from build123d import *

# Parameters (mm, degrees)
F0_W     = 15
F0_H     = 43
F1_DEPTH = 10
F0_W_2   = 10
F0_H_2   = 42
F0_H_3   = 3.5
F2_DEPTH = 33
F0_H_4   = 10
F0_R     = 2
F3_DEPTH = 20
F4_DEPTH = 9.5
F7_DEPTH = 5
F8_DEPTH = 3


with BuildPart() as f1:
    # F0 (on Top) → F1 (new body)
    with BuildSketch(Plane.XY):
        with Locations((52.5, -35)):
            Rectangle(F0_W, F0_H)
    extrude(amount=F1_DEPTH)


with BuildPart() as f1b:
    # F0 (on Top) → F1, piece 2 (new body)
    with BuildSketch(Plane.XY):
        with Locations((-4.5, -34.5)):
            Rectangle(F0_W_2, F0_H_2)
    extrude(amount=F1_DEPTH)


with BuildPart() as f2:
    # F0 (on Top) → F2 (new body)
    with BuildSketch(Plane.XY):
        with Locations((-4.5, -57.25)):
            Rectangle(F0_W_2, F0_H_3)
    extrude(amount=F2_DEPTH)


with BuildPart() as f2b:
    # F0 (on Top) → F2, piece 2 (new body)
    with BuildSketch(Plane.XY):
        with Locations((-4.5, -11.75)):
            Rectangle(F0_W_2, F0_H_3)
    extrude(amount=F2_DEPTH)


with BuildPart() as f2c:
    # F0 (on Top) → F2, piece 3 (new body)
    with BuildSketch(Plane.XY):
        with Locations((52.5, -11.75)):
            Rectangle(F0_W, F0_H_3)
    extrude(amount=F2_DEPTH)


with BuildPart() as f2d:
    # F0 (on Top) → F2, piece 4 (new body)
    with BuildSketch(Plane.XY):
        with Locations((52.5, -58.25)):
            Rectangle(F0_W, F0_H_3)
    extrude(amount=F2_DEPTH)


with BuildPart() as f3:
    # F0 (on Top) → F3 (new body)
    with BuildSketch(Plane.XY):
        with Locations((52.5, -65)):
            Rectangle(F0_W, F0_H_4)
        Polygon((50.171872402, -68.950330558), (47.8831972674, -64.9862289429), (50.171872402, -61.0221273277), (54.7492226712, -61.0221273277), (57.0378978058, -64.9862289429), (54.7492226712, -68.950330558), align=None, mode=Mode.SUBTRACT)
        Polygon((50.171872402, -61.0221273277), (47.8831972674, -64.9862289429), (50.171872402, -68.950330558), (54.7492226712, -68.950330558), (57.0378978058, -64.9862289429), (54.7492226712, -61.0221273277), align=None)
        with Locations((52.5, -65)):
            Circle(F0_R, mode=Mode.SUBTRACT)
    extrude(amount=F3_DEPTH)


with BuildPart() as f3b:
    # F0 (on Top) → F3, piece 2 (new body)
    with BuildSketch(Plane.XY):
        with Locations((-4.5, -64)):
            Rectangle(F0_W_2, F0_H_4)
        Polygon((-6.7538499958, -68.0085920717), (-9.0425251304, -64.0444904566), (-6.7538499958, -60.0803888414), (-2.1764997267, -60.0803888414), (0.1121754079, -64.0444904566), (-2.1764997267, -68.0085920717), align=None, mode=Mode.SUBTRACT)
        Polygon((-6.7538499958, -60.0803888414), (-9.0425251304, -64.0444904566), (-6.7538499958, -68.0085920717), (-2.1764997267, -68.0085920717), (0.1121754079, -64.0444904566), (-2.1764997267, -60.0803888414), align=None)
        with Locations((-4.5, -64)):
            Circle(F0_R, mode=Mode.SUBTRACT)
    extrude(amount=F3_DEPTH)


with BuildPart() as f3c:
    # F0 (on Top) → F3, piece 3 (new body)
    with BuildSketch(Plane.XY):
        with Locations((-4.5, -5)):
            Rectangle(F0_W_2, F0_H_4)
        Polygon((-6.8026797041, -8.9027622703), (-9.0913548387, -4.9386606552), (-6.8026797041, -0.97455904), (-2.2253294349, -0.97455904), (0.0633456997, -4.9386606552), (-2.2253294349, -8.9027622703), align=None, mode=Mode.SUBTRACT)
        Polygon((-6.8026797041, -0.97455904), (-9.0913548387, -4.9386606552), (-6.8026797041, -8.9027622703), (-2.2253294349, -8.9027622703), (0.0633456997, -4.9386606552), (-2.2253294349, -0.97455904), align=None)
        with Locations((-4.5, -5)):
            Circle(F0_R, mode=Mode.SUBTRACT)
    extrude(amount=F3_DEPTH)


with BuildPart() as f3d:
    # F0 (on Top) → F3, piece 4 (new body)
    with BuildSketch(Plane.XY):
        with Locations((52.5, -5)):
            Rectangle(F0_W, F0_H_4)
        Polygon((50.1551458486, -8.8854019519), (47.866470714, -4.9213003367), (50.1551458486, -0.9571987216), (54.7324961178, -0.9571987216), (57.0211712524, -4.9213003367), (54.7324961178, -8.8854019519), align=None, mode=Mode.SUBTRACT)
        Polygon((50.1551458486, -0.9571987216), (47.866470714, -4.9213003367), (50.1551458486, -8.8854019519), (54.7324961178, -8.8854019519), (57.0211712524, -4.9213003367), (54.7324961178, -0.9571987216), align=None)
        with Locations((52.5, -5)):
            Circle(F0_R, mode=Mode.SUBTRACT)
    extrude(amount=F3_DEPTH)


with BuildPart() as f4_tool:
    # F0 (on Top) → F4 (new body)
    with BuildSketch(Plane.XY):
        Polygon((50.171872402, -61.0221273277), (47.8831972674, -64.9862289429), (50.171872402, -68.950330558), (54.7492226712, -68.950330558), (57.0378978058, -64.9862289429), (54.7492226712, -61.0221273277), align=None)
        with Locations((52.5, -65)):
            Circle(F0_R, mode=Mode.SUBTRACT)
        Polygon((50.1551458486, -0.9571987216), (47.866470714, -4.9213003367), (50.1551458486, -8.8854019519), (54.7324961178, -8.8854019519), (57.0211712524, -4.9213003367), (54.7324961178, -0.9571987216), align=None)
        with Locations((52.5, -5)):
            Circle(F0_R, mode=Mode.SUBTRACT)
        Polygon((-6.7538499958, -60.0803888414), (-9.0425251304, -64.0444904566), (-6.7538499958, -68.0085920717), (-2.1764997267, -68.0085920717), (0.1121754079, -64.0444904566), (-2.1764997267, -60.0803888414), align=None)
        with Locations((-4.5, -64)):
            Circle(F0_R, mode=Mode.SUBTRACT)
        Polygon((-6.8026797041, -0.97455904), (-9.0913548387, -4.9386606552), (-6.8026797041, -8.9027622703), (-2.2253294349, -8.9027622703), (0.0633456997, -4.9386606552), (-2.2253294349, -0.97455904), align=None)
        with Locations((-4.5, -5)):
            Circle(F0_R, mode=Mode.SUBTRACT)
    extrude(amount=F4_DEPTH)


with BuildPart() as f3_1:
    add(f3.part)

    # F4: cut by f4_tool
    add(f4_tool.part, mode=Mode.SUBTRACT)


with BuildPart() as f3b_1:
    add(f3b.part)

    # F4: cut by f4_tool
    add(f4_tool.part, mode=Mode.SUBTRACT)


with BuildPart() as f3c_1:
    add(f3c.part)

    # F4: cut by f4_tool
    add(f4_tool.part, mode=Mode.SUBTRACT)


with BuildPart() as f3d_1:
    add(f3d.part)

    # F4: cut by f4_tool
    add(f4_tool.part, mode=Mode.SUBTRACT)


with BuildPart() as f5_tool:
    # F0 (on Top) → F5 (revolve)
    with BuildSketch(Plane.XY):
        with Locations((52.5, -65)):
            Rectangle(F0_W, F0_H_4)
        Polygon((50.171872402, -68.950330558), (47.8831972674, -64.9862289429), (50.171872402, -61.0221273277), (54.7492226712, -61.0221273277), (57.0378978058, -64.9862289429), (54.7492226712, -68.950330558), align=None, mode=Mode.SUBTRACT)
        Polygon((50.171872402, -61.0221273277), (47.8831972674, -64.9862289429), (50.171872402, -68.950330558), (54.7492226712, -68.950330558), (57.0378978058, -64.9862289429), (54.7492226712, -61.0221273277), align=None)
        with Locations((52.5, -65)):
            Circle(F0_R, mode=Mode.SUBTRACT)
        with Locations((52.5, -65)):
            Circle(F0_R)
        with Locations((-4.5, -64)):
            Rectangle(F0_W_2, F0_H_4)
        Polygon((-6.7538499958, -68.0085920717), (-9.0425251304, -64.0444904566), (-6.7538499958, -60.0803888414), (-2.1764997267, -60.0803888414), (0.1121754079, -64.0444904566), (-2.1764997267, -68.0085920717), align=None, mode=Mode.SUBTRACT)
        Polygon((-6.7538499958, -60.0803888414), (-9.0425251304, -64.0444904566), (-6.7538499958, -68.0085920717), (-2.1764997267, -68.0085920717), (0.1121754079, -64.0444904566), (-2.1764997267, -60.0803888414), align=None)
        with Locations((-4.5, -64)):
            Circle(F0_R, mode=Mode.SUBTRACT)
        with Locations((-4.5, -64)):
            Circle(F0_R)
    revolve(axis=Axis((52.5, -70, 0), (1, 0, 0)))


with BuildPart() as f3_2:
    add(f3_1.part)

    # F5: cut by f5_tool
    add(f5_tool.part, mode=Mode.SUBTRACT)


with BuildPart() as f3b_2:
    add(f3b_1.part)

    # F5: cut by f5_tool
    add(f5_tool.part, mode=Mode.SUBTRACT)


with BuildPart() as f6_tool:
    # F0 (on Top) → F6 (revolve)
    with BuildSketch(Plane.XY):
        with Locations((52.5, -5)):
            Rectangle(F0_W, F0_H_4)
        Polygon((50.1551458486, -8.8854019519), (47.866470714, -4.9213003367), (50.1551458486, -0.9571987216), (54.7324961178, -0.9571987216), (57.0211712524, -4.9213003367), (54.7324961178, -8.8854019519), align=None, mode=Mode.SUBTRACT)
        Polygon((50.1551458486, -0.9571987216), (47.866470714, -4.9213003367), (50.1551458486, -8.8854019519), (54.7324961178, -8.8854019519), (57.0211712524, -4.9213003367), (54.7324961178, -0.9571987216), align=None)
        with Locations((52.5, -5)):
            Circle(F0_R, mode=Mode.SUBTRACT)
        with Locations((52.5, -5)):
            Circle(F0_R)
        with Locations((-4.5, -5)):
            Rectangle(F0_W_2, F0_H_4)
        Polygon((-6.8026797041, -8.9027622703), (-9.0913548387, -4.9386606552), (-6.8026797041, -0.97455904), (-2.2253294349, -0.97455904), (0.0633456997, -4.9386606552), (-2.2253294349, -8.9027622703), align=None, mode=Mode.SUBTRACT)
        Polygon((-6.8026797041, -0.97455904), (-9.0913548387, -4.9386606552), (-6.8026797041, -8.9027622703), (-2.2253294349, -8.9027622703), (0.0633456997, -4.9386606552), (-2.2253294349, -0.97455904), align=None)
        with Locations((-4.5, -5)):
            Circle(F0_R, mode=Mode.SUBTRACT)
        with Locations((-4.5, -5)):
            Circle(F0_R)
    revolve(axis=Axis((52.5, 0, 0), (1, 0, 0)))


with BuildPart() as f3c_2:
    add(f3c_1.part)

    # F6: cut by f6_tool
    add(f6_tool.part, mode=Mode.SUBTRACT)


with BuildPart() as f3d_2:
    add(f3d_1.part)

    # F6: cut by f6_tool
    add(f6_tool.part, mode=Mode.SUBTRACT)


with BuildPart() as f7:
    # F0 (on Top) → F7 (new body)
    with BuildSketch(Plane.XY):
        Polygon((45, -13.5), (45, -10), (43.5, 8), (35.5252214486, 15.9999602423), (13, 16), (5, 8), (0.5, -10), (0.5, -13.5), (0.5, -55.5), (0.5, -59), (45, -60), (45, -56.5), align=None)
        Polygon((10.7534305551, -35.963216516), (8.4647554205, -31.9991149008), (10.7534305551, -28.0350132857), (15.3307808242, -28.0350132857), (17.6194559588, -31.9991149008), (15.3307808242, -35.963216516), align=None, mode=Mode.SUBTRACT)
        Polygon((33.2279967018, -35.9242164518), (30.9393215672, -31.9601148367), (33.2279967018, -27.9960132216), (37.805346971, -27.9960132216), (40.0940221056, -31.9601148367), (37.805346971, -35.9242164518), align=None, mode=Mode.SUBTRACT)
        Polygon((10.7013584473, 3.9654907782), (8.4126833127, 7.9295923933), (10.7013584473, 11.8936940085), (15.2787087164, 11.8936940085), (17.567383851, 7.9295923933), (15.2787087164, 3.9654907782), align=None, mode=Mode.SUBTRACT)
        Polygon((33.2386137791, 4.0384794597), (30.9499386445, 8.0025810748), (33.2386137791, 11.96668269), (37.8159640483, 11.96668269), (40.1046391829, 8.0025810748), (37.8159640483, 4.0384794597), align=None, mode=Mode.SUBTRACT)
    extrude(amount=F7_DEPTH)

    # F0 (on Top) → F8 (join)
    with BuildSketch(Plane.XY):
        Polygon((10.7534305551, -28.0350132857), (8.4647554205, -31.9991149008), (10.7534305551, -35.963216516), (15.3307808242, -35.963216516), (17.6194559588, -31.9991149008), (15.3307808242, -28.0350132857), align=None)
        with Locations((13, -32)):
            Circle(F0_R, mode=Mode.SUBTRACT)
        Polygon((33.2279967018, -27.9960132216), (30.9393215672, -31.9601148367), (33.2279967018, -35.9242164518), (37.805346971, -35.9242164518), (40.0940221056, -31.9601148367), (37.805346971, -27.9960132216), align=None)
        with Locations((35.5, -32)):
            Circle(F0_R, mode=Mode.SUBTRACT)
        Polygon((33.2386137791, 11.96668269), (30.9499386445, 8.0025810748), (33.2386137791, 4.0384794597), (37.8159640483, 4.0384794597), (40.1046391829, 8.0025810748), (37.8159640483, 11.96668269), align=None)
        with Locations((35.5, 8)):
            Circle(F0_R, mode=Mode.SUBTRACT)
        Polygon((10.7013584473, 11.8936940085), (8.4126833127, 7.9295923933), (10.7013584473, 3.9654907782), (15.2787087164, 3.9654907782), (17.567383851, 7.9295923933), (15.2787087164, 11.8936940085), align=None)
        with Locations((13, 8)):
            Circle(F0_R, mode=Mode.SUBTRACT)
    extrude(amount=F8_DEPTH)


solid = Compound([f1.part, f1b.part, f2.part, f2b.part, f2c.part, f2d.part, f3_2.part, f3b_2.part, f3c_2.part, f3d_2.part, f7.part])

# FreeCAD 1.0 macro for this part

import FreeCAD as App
import Part
import Sketcher
from FreeCAD import Vector
Q = App.Units.Quantity


def add_polygon(sketch, points):
    """Adds a closed chain of lines whose ends are joined by coincident constraints."""
    first, n = sketch.GeometryCount, len(points)
    for a, b in zip(points, points[1:] + points[:1]):
        sketch.addGeometry(Part.LineSegment(App.Vector(*a, 0), App.Vector(*b, 0)), False)
    for i in range(n):
        sketch.addConstraint(Sketcher.Constraint("Coincident", first + i, 2, first + (i + 1) % n, 1))

doc = App.newDocument("Part")
body = doc.addObject("PartDesign::Body", "Body")

# Sketch on XY plane
sketch1 = body.newObject("Sketcher::SketchObject", "Sketch")
sketch1.AttachmentSupport = (doc.getObject("XY_Plane"), [""])
sketch1.MapMode = "FlatFace"
add_polygon(sketch1, [(45, -14), (45, -56), (60, -56), (60, -14)])  # lines 0-3
sketch1.addConstraint(Sketcher.Constraint("Vertical", 0))
sketch1.addConstraint(Sketcher.Constraint("Horizontal", 1))
sketch1.addConstraint(Sketcher.Constraint("Vertical", 2))
sketch1.addConstraint(Sketcher.Constraint("Horizontal", 3))
sketch1.addConstraint(Sketcher.Constraint("DistanceX", 1, 1, 1, 2, 15.0))
sketch1.addConstraint(Sketcher.Constraint("DistanceY", 0, 2, 0, 1, 43.0))
sketch1.addConstraint(Sketcher.Constraint("DistanceX", -1, 1, 0, 2, 45.0))
sketch1.addConstraint(Sketcher.Constraint("DistanceY", 0, 2, -1, 1, 56.5))
pad1 = body.newObject("PartDesign::Pad", "Pad")
pad1.Profile = sketch1
pad1.Length = 10
body2 = doc.addObject("PartDesign::Body", "Body001")

# Sketch on XY plane
sketch2 = body2.newObject("Sketcher::SketchObject", "Sketch001")
sketch2.AttachmentSupport = (doc.getObject("XY_Plane001"), [""])
sketch2.MapMode = "FlatFace"
add_polygon(sketch2, [(-10, -14), (-10, -56), (0, -56), (0, -14)])  # lines 0-3
sketch2.addConstraint(Sketcher.Constraint("Vertical", 0))
sketch2.addConstraint(Sketcher.Constraint("Horizontal", 1))
sketch2.addConstraint(Sketcher.Constraint("Vertical", 2))
sketch2.addConstraint(Sketcher.Constraint("Horizontal", 3))
sketch2.addConstraint(Sketcher.Constraint("DistanceX", 1, 1, 1, 2, 10.0))
sketch2.addConstraint(Sketcher.Constraint("DistanceY", 0, 2, 0, 1, 42.0))
sketch2.addConstraint(Sketcher.Constraint("DistanceX", 0, 2, -1, 1, 9.5))
sketch2.addConstraint(Sketcher.Constraint("DistanceY", 0, 2, -1, 1, 55.5))
pad2 = body2.newObject("PartDesign::Pad", "Pad001")
pad2.Profile = sketch2
pad2.Length = 10
body3 = doc.addObject("PartDesign::Body", "Body002")

# Sketch on XY plane
sketch3 = body3.newObject("Sketcher::SketchObject", "Sketch002")
sketch3.AttachmentSupport = (doc.getObject("XY_Plane002"), [""])
sketch3.MapMode = "FlatFace"
add_polygon(sketch3, [(-9.5, -55.5), (-9.5, -59), (0.5, -59), (0.5, -55.5)])  # lines 0-3
sketch3.addConstraint(Sketcher.Constraint("Vertical", 0))
sketch3.addConstraint(Sketcher.Constraint("Horizontal", 1))
sketch3.addConstraint(Sketcher.Constraint("Vertical", 2))
sketch3.addConstraint(Sketcher.Constraint("Horizontal", 3))
sketch3.addConstraint(Sketcher.Constraint("DistanceX", 1, 1, 1, 2, 10.0))
sketch3.addConstraint(Sketcher.Constraint("DistanceY", 0, 2, 0, 1, 3.5))
sketch3.addConstraint(Sketcher.Constraint("DistanceY", 0, 2, -1, 1, 59.0))
sketch3.addConstraint(Sketcher.Constraint("DistanceX", 0, 2, -1, 1, 9.5))
pad3 = body3.newObject("PartDesign::Pad", "Pad002")
pad3.Profile = sketch3
pad3.Length = 33
body4 = doc.addObject("PartDesign::Body", "Body003")

# Sketch on XY plane
sketch4 = body4.newObject("Sketcher::SketchObject", "Sketch003")
sketch4.AttachmentSupport = (doc.getObject("XY_Plane003"), [""])
sketch4.MapMode = "FlatFace"
add_polygon(sketch4, [(-9.5, -10), (-9.5, -13.5), (0.5, -13.5), (0.5, -10)])  # lines 0-3
sketch4.addConstraint(Sketcher.Constraint("Vertical", 0))
sketch4.addConstraint(Sketcher.Constraint("Horizontal", 1))
sketch4.addConstraint(Sketcher.Constraint("Vertical", 2))
sketch4.addConstraint(Sketcher.Constraint("Horizontal", 3))
sketch4.addConstraint(Sketcher.Constraint("DistanceX", 1, 1, 1, 2, 10.0))
sketch4.addConstraint(Sketcher.Constraint("DistanceY", 0, 2, 0, 1, 3.5))
sketch4.addConstraint(Sketcher.Constraint("DistanceY", 2, 2, -1, 1, 10.0))
sketch4.addConstraint(Sketcher.Constraint("DistanceX", 0, 2, -1, 1, 9.5))
pad4 = body4.newObject("PartDesign::Pad", "Pad003")
pad4.Profile = sketch4
pad4.Length = 33
body5 = doc.addObject("PartDesign::Body", "Body004")

# Sketch on XY plane
sketch5 = body5.newObject("Sketcher::SketchObject", "Sketch004")
sketch5.AttachmentSupport = (doc.getObject("XY_Plane004"), [""])
sketch5.MapMode = "FlatFace"
add_polygon(sketch5, [(45, -10), (45, -13.5), (60, -13.5), (60, -10)])  # lines 0-3
sketch5.addConstraint(Sketcher.Constraint("Vertical", 0))
sketch5.addConstraint(Sketcher.Constraint("Horizontal", 1))
sketch5.addConstraint(Sketcher.Constraint("Vertical", 2))
sketch5.addConstraint(Sketcher.Constraint("Horizontal", 3))
sketch5.addConstraint(Sketcher.Constraint("DistanceX", 1, 1, 1, 2, 15.0))
sketch5.addConstraint(Sketcher.Constraint("DistanceY", 0, 2, 0, 1, 3.5))
sketch5.addConstraint(Sketcher.Constraint("DistanceX", -1, 1, 0, 2, 45.0))
sketch5.addConstraint(Sketcher.Constraint("DistanceY", 2, 2, -1, 1, 10.0))
pad5 = body5.newObject("PartDesign::Pad", "Pad004")
pad5.Profile = sketch5
pad5.Length = 33
body6 = doc.addObject("PartDesign::Body", "Body005")

# Sketch on XY plane
sketch6 = body6.newObject("Sketcher::SketchObject", "Sketch005")
sketch6.AttachmentSupport = (doc.getObject("XY_Plane005"), [""])
sketch6.MapMode = "FlatFace"
add_polygon(sketch6, [(45, -56.5), (45, -60), (60, -60), (60, -56.5)])  # lines 0-3
sketch6.addConstraint(Sketcher.Constraint("Vertical", 0))
sketch6.addConstraint(Sketcher.Constraint("Horizontal", 1))
sketch6.addConstraint(Sketcher.Constraint("Vertical", 2))
sketch6.addConstraint(Sketcher.Constraint("Horizontal", 3))
sketch6.addConstraint(Sketcher.Constraint("DistanceX", 1, 1, 1, 2, 15.0))
sketch6.addConstraint(Sketcher.Constraint("DistanceY", 0, 2, 0, 1, 3.5))
sketch6.addConstraint(Sketcher.Constraint("DistanceX", -1, 1, 0, 2, 45.0))
sketch6.addConstraint(Sketcher.Constraint("DistanceY", 0, 2, -1, 1, 60.0))
pad6 = body6.newObject("PartDesign::Pad", "Pad005")
pad6.Profile = sketch6
pad6.Length = 33
body7 = doc.addObject("PartDesign::Body", "Body006")

# Sketch on XY plane
sketch7 = body7.newObject("Sketcher::SketchObject", "Sketch006")
sketch7.AttachmentSupport = (doc.getObject("XY_Plane006"), [""])
sketch7.MapMode = "FlatFace"
add_polygon(sketch7, [(45, -60), (45, -70), (60, -70), (60, -60)])  # lines 0-3
sketch7.addGeometry(Part.Circle(Vector(52.5, -65, 0), Vector(0, 0, 1), 2), False)  # 4
sketch7.addConstraint(Sketcher.Constraint("Vertical", 0))
sketch7.addConstraint(Sketcher.Constraint("Horizontal", 1))
sketch7.addConstraint(Sketcher.Constraint("Vertical", 2))
sketch7.addConstraint(Sketcher.Constraint("Horizontal", 3))
sketch7.addConstraint(Sketcher.Constraint("Diameter", 4, 4.0))
sketch7.addConstraint(Sketcher.Constraint("DistanceX", 1, 1, 1, 2, 15.0))
sketch7.addConstraint(Sketcher.Constraint("DistanceY", 0, 2, 0, 1, 10.0))
sketch7.addConstraint(Sketcher.Constraint("DistanceY", 4, 3, -1, 1, 65.0))
sketch7.addConstraint(Sketcher.Constraint("DistanceX", -1, 1, 0, 2, 45.0))
sketch7.addConstraint(Sketcher.Constraint("DistanceY", 0, 2, -1, 1, 70.0))
sketch7.addConstraint(Sketcher.Constraint("DistanceX", -1, 1, 4, 3, 52.5))
pad7 = body7.newObject("PartDesign::Pad", "Pad006")
pad7.Profile = sketch7
pad7.Length = 20
body8 = doc.addObject("PartDesign::Body", "Body007")

# Sketch on XY plane
sketch8 = body8.newObject("Sketcher::SketchObject", "Sketch007")
sketch8.AttachmentSupport = (doc.getObject("XY_Plane007"), [""])
sketch8.MapMode = "FlatFace"
add_polygon(sketch8, [(-9.5, -59), (-9.5, -69), (0.5, -69), (0.5, -59)])  # lines 0-3
sketch8.addGeometry(Part.Circle(Vector(-4.5, -64, 0), Vector(0, 0, 1), 2), False)  # 4
sketch8.addConstraint(Sketcher.Constraint("Vertical", 0))
sketch8.addConstraint(Sketcher.Constraint("Horizontal", 1))
sketch8.addConstraint(Sketcher.Constraint("Vertical", 2))
sketch8.addConstraint(Sketcher.Constraint("Horizontal", 3))
sketch8.addConstraint(Sketcher.Constraint("Equal", 3, 0))
sketch8.addConstraint(Sketcher.Constraint("Diameter", 4, 4.0))
sketch8.addConstraint(Sketcher.Constraint("DistanceX", 1, 1, 1, 2, 10.0))
sketch8.addConstraint(Sketcher.Constraint("DistanceY", 4, 3, -1, 1, 64.0))
sketch8.addConstraint(Sketcher.Constraint("DistanceY", 0, 2, -1, 1, 69.0))
sketch8.addConstraint(Sketcher.Constraint("DistanceX", 0, 2, 4, 3, 5.0))
sketch8.addConstraint(Sketcher.Constraint("DistanceX", 4, 3, -1, 1, 4.5))
pad8 = body8.newObject("PartDesign::Pad", "Pad007")
pad8.Profile = sketch8
pad8.Length = 20
body9 = doc.addObject("PartDesign::Body", "Body008")

# Sketch on XY plane
sketch9 = body9.newObject("Sketcher::SketchObject", "Sketch008")
sketch9.AttachmentSupport = (doc.getObject("XY_Plane008"), [""])
sketch9.MapMode = "FlatFace"
add_polygon(sketch9, [(-9.5, 0), (-9.5, -10), (0.5, -10), (0.5, 0)])  # lines 0-3
sketch9.addGeometry(Part.Circle(Vector(-4.5, -5, 0), Vector(0, 0, 1), 2), False)  # 4
sketch9.addConstraint(Sketcher.Constraint("Vertical", 0))
sketch9.addConstraint(Sketcher.Constraint("Horizontal", 1))
sketch9.addConstraint(Sketcher.Constraint("Vertical", 2))
sketch9.addConstraint(Sketcher.Constraint("Horizontal", 3))
sketch9.addConstraint(Sketcher.Constraint("PointOnObject", 2, 2, -1))
sketch9.addConstraint(Sketcher.Constraint("Equal", 3, 0))
sketch9.addConstraint(Sketcher.Constraint("Diameter", 4, 4.0))
sketch9.addConstraint(Sketcher.Constraint("DistanceX", 1, 1, 1, 2, 10.0))
sketch9.addConstraint(Sketcher.Constraint("DistanceY", 4, 3, -1, 1, 5.0))
sketch9.addConstraint(Sketcher.Constraint("DistanceX", 0, 2, 4, 3, 5.0))
sketch9.addConstraint(Sketcher.Constraint("DistanceX", 4, 3, -1, 1, 4.5))
pad9 = body9.newObject("PartDesign::Pad", "Pad008")
pad9.Profile = sketch9
pad9.Length = 20
body10 = doc.addObject("PartDesign::Body", "Body009")

# Sketch on XY plane
sketch10 = body10.newObject("Sketcher::SketchObject", "Sketch009")
sketch10.AttachmentSupport = (doc.getObject("XY_Plane009"), [""])
sketch10.MapMode = "FlatFace"
add_polygon(sketch10, [(45, 0), (45, -10), (60, -10), (60, 0)])  # lines 0-3
sketch10.addGeometry(Part.Circle(Vector(52.5, -5, 0), Vector(0, 0, 1), 2), False)  # 4
sketch10.addConstraint(Sketcher.Constraint("Vertical", 0))
sketch10.addConstraint(Sketcher.Constraint("Horizontal", 1))
sketch10.addConstraint(Sketcher.Constraint("Vertical", 2))
sketch10.addConstraint(Sketcher.Constraint("Horizontal", 3))
sketch10.addConstraint(Sketcher.Constraint("PointOnObject", 2, 2, -1))
sketch10.addConstraint(Sketcher.Constraint("Diameter", 4, 4.0))
sketch10.addConstraint(Sketcher.Constraint("DistanceX", 1, 1, 1, 2, 15.0))
sketch10.addConstraint(Sketcher.Constraint("DistanceY", 0, 2, 0, 1, 10.0))
sketch10.addConstraint(Sketcher.Constraint("DistanceY", 4, 3, -1, 1, 5.0))
sketch10.addConstraint(Sketcher.Constraint("DistanceX", -1, 1, 0, 2, 45.0))
sketch10.addConstraint(Sketcher.Constraint("DistanceX", -1, 1, 4, 3, 52.5))
pad10 = body10.newObject("PartDesign::Pad", "Pad009")
pad10.Profile = sketch10
pad10.Length = 20
body11 = doc.addObject("PartDesign::Body", "Body010")
body11.AllowCompound = True

# Sketch on XY plane
sketch11 = body11.newObject("Sketcher::SketchObject", "Sketch010")
sketch11.AttachmentSupport = (doc.getObject("XY_Plane010"), [""])
sketch11.MapMode = "FlatFace"
add_polygon(sketch11, [(50.2, -61), (47.9, -65), (50.2, -69), (54.7, -69), (57, -65), (54.7, -61)])  # lines 0-5
sketch11.addGeometry(Part.Circle(Vector(52.5, -65, 0), Vector(0, 0, 1), 2), False)  # 6
add_polygon(sketch11, [(50.2, -1), (47.9, -4.9), (50.2, -8.9), (54.7, -8.9), (57, -4.9), (54.7, -1)])  # lines 7-12
sketch11.addGeometry(Part.Circle(Vector(52.5, -5, 0), Vector(0, 0, 1), 2), False)  # 13
add_polygon(sketch11, [(-6.8, -60.1), (-9, -64), (-6.8, -68), (-2.2, -68), (0.1, -64), (-2.2, -60.1)])  # lines 14-19
sketch11.addGeometry(Part.Circle(Vector(-4.5, -64, 0), Vector(0, 0, 1), 2), False)  # 20
add_polygon(sketch11, [(-6.8, -1), (-9.1, -4.9), (-6.8, -8.9), (-2.2, -8.9), (0.1, -4.9), (-2.2, -1)])  # lines 21-26
sketch11.addGeometry(Part.Circle(Vector(-4.5, -5, 0), Vector(0, 0, 1), 2), False)  # 27
sketch11.addConstraint(Sketcher.Constraint("Horizontal", 2))
sketch11.addConstraint(Sketcher.Constraint("Horizontal", 5))
sketch11.addConstraint(Sketcher.Constraint("Horizontal", 9))
sketch11.addConstraint(Sketcher.Constraint("Horizontal", 12))
sketch11.addConstraint(Sketcher.Constraint("Horizontal", 16))
sketch11.addConstraint(Sketcher.Constraint("Horizontal", 19))
sketch11.addConstraint(Sketcher.Constraint("Horizontal", 23))
sketch11.addConstraint(Sketcher.Constraint("Horizontal", 26))
sketch11.addConstraint(Sketcher.Constraint("Equal", 6, 13))
sketch11.addConstraint(Sketcher.Constraint("Equal", 13, 20))
sketch11.addConstraint(Sketcher.Constraint("Equal", 20, 27))
sketch11.addConstraint(Sketcher.Constraint("Parallel", 0, 3))
sketch11.addConstraint(Sketcher.Constraint("Parallel", 1, 4))
sketch11.addConstraint(Sketcher.Constraint("Parallel", 3, 7))
sketch11.addConstraint(Sketcher.Constraint("Parallel", 4, 8))
sketch11.addConstraint(Sketcher.Constraint("Parallel", 7, 10))
sketch11.addConstraint(Sketcher.Constraint("Parallel", 8, 11))
sketch11.addConstraint(Sketcher.Constraint("Parallel", 10, 14))
sketch11.addConstraint(Sketcher.Constraint("Parallel", 11, 15))
sketch11.addConstraint(Sketcher.Constraint("Parallel", 14, 17))
sketch11.addConstraint(Sketcher.Constraint("Parallel", 15, 18))
sketch11.addConstraint(Sketcher.Constraint("Parallel", 17, 21))
sketch11.addConstraint(Sketcher.Constraint("Parallel", 18, 22))
sketch11.addConstraint(Sketcher.Constraint("Parallel", 21, 24))
sketch11.addConstraint(Sketcher.Constraint("Parallel", 22, 25))
sketch11.addConstraint(Sketcher.Constraint("Horizontal", 13, 3, 27, 3))
sketch11.addConstraint(Sketcher.Constraint("Horizontal", 0, 2, 3, 2))
sketch11.addConstraint(Sketcher.Constraint("Horizontal", 7, 2, 10, 2))
sketch11.addConstraint(Sketcher.Constraint("Horizontal", 14, 2, 17, 2))
sketch11.addConstraint(Sketcher.Constraint("Horizontal", 21, 2, 24, 2))
sketch11.addConstraint(Sketcher.Constraint("Vertical", 6, 3, 13, 3))
sketch11.addConstraint(Sketcher.Constraint("Vertical", 20, 3, 27, 3))
sketch11.addConstraint(Sketcher.Constraint("Vertical", 2, 2, 4, 2))
sketch11.addConstraint(Sketcher.Constraint("Vertical", 1, 2, 5, 2))
sketch11.addConstraint(Sketcher.Constraint("Vertical", 9, 2, 11, 2))
sketch11.addConstraint(Sketcher.Constraint("Vertical", 16, 2, 18, 2))
sketch11.addConstraint(Sketcher.Constraint("Vertical", 23, 2, 25, 2))
sketch11.addConstraint(Sketcher.Constraint("Equal", 5, 9))
sketch11.addConstraint(Sketcher.Constraint("Equal", 12, 16))
sketch11.addConstraint(Sketcher.Constraint("Equal", 19, 23))
sketch11.addConstraint(Sketcher.Constraint("Equal", 4, 7))
sketch11.addConstraint(Sketcher.Constraint("Equal", 11, 14))
sketch11.addConstraint(Sketcher.Constraint("Equal", 18, 21))
sketch11.addConstraint(Sketcher.Constraint("Diameter", 6, 4.0))
sketch11.addConstraint(Sketcher.Constraint("Angle", 0, Q("-120 deg")))
sketch11.addConstraint(Sketcher.Constraint("DistanceY", 6, 3, -1, 1, 65.0))
sketch11.addConstraint(Sketcher.Constraint("DistanceY", 13, 3, -1, 1, 5.0))
sketch11.addConstraint(Sketcher.Constraint("DistanceY", 20, 3, -1, 1, 64.0))
sketch11.addConstraint(Sketcher.Constraint("DistanceX", 20, 3, 6, 3, 57.0))
sketch11.addConstraint(Sketcher.Constraint("DistanceX", -1, 1, 6, 3, 52.5))
sketch11.addConstraint(Sketcher.Constraint("DistanceX", 2, 1, 2, 2, 4.57735))
sketch11.addConstraint(Sketcher.Constraint("DistanceY", 7, 2, -1, 1, 4.9213))
sketch11.addConstraint(Sketcher.Constraint("DistanceY", 8, 2, -1, 1, 8.885402))
sketch11.addConstraint(Sketcher.Constraint("DistanceX", 16, 2, -1, 1, 2.1765))
sketch11.addConstraint(Sketcher.Constraint("DistanceX", 7, 2, 5, 2, 2.305402))
sketch11.addConstraint(Sketcher.Constraint("DistanceX", 23, 2, 7, 2, 50.0918))
sketch11.addConstraint(Sketcher.Constraint("DistanceY", 0, 2, -1, 1, 64.986229))
sketch11.addConstraint(Sketcher.Constraint("DistanceX", -1, 1, 7, 2, 47.866471))
sketch11.addConstraint(Sketcher.Constraint("DistanceY", 14, 2, -1, 1, 64.04449))
sketch11.addConstraint(Sketcher.Constraint("DistanceY", 21, 2, -1, 1, 4.938661))
pad11 = body11.newObject("PartDesign::Pad", "Pad010")
pad11.Profile = sketch11
pad11.Length = 9.5
doc.recompute()

body12 = doc.addObject("PartDesign::Body", "Body011")
body12.BaseFeature = body11
boolean = body7.newObject("PartDesign::Boolean", "Boolean")
boolean.Type = "Cut"
boolean.addObjects([body12])
doc.recompute()

body13 = doc.addObject("PartDesign::Body", "Body012")
body13.BaseFeature = body11
boolean2 = body8.newObject("PartDesign::Boolean", "Boolean001")
boolean2.Type = "Cut"
boolean2.addObjects([body13])
doc.recompute()

body14 = doc.addObject("PartDesign::Body", "Body013")
body14.BaseFeature = body11
boolean3 = body9.newObject("PartDesign::Boolean", "Boolean002")
boolean3.Type = "Cut"
boolean3.addObjects([body14])
doc.recompute()

boolean4 = body10.newObject("PartDesign::Boolean", "Boolean003")
boolean4.Type = "Cut"
boolean4.addObjects([body11])
body15 = doc.addObject("PartDesign::Body", "Body014")
body15.AllowCompound = True

# Sketch on XY plane
sketch12 = body15.newObject("Sketcher::SketchObject", "Sketch011")
sketch12.AttachmentSupport = (doc.getObject("XY_Plane014"), [""])
sketch12.MapMode = "FlatFace"
add_polygon(sketch12, [(45, -60), (45, -70), (60, -70), (60, -60)])  # lines 0-3
add_polygon(sketch12, [(-10, -59), (-10, -69), (0, -69), (0, -59)])  # lines 4-7
sketch12.addGeometry(Part.LineSegment(Vector(-10, -70, 0), Vector(60, -70, 0)), True)  # axis
sketch12.addConstraint(Sketcher.Constraint("Vertical", 0))
sketch12.addConstraint(Sketcher.Constraint("Horizontal", 1))
sketch12.addConstraint(Sketcher.Constraint("Vertical", 2))
sketch12.addConstraint(Sketcher.Constraint("Horizontal", 3))
sketch12.addConstraint(Sketcher.Constraint("Vertical", 4))
sketch12.addConstraint(Sketcher.Constraint("Horizontal", 5))
sketch12.addConstraint(Sketcher.Constraint("Vertical", 6))
sketch12.addConstraint(Sketcher.Constraint("Horizontal", 7))
sketch12.addConstraint(Sketcher.Constraint("Horizontal", 8))
sketch12.addConstraint(Sketcher.Constraint("Coincident", 8, 2, 1, 2))
sketch12.addConstraint(Sketcher.Constraint("Vertical", 7, 2, 8, 1))
sketch12.addConstraint(Sketcher.Constraint("Equal", 7, 0))
sketch12.addConstraint(Sketcher.Constraint("Equal", 2, 4))
sketch12.addConstraint(Sketcher.Constraint("DistanceX", 1, 1, 1, 2, 15.0))
sketch12.addConstraint(Sketcher.Constraint("DistanceX", 5, 1, 5, 2, 10.0))
sketch12.addConstraint(Sketcher.Constraint("DistanceX", 8, 1, 8, 2, 69.5))
sketch12.addConstraint(Sketcher.Constraint("DistanceX", -1, 1, 0, 2, 45.0))
sketch12.addConstraint(Sketcher.Constraint("DistanceY", 0, 2, -1, 1, 70.0))
sketch12.addConstraint(Sketcher.Constraint("DistanceY", 4, 2, -1, 1, 69.0))
revolution = body15.newObject("PartDesign::Revolution", "Revolution")
revolution.Profile = sketch12
revolution.ReferenceAxis = (sketch12, ["Axis0"])
revolution.Angle = 360
doc.recompute()

body16 = doc.addObject("PartDesign::Body", "Body015")
body16.BaseFeature = body15
boolean5 = body7.newObject("PartDesign::Boolean", "Boolean004")
boolean5.Type = "Cut"
boolean5.addObjects([body16])
doc.recompute()

boolean6 = body8.newObject("PartDesign::Boolean", "Boolean005")
boolean6.Type = "Cut"
boolean6.addObjects([body15])
body17 = doc.addObject("PartDesign::Body", "Body016")
body17.AllowCompound = True

# Sketch on XY plane
sketch13 = body17.newObject("Sketcher::SketchObject", "Sketch012")
sketch13.AttachmentSupport = (doc.getObject("XY_Plane016"), [""])
sketch13.MapMode = "FlatFace"
add_polygon(sketch13, [(45, 0), (45, -10), (60, -10), (60, 0)])  # lines 0-3
add_polygon(sketch13, [(-10, 0), (-10, -10), (0, -10), (0, 0)])  # lines 4-7
sketch13.addConstraint(Sketcher.Constraint("Vertical", 0))
sketch13.addConstraint(Sketcher.Constraint("Horizontal", 1))
sketch13.addConstraint(Sketcher.Constraint("Vertical", 2))
sketch13.addConstraint(Sketcher.Constraint("Horizontal", 3))
sketch13.addConstraint(Sketcher.Constraint("Vertical", 4))
sketch13.addConstraint(Sketcher.Constraint("Horizontal", 5))
sketch13.addConstraint(Sketcher.Constraint("Vertical", 6))
sketch13.addConstraint(Sketcher.Constraint("Horizontal", 7))
sketch13.addConstraint(Sketcher.Constraint("PointOnObject", 2, 2, -1))
sketch13.addConstraint(Sketcher.Constraint("PointOnObject", 6, 2, -1))
sketch13.addConstraint(Sketcher.Constraint("Horizontal", 1, 2, 4, 2))
sketch13.addConstraint(Sketcher.Constraint("Equal", 7, 0))
sketch13.addConstraint(Sketcher.Constraint("DistanceX", 1, 1, 1, 2, 15.0))
sketch13.addConstraint(Sketcher.Constraint("DistanceX", 5, 1, 5, 2, 10.0))
sketch13.addConstraint(Sketcher.Constraint("DistanceX", -1, 1, 0, 2, 45.0))
sketch13.addConstraint(Sketcher.Constraint("DistanceX", 4, 2, -1, 1, 9.5))
revolution2 = body17.newObject("PartDesign::Revolution", "Revolution001")
revolution2.Profile = sketch13
revolution2.ReferenceAxis = (sketch13, ["H_Axis"])
revolution2.Angle = 360
doc.recompute()

body18 = doc.addObject("PartDesign::Body", "Body017")
body18.BaseFeature = body17
boolean7 = body9.newObject("PartDesign::Boolean", "Boolean006")
boolean7.Type = "Cut"
boolean7.addObjects([body18])
doc.recompute()

boolean8 = body10.newObject("PartDesign::Boolean", "Boolean007")
boolean8.Type = "Cut"
boolean8.addObjects([body17])
body19 = doc.addObject("PartDesign::Body", "Body018")

# Sketch on XY plane
sketch14 = body19.newObject("Sketcher::SketchObject", "Sketch013")
sketch14.AttachmentSupport = (doc.getObject("XY_Plane018"), [""])
sketch14.MapMode = "FlatFace"
add_polygon(sketch14, [(45, -10), (43.5, 8), (35.5, 16), (13, 16), (5, 8), (0.5, -10), (0.5, -59), (45, -60)])  # lines 0-7
add_polygon(sketch14, [(15.3, -36), (10.8, -36), (8.5, -32), (10.8, -28), (15.3, -28), (17.6, -32)])  # lines 8-13
add_polygon(sketch14, [(37.8, -35.9), (33.2, -35.9), (30.9, -32), (33.2, -28), (37.8, -28), (40.1, -32)])  # lines 14-19
add_polygon(sketch14, [(15.3, 4), (10.7, 4), (8.4, 7.9), (10.7, 11.9), (15.3, 11.9), (17.6, 7.9)])  # lines 20-25
add_polygon(sketch14, [(37.8, 4), (33.2, 4), (30.9, 8), (33.2, 12), (37.8, 12), (40.1, 8)])  # lines 26-31
sketch14.addConstraint(Sketcher.Constraint("Vertical", 5))
sketch14.addConstraint(Sketcher.Constraint("Vertical", 7))
sketch14.addConstraint(Sketcher.Constraint("Horizontal", 8))
sketch14.addConstraint(Sketcher.Constraint("Horizontal", 11))
sketch14.addConstraint(Sketcher.Constraint("Horizontal", 14))
sketch14.addConstraint(Sketcher.Constraint("Horizontal", 17))
sketch14.addConstraint(Sketcher.Constraint("Horizontal", 20))
sketch14.addConstraint(Sketcher.Constraint("Horizontal", 23))
sketch14.addConstraint(Sketcher.Constraint("Horizontal", 26))
sketch14.addConstraint(Sketcher.Constraint("Horizontal", 29))
sketch14.addConstraint(Sketcher.Constraint("Parallel", 9, 12))
sketch14.addConstraint(Sketcher.Constraint("Parallel", 10, 13))
sketch14.addConstraint(Sketcher.Constraint("Parallel", 12, 15))
sketch14.addConstraint(Sketcher.Constraint("Parallel", 13, 16))
sketch14.addConstraint(Sketcher.Constraint("Parallel", 15, 18))
sketch14.addConstraint(Sketcher.Constraint("Parallel", 16, 19))
sketch14.addConstraint(Sketcher.Constraint("Parallel", 18, 21))
sketch14.addConstraint(Sketcher.Constraint("Parallel", 19, 22))
sketch14.addConstraint(Sketcher.Constraint("Parallel", 21, 24))
sketch14.addConstraint(Sketcher.Constraint("Parallel", 22, 25))
sketch14.addConstraint(Sketcher.Constraint("Parallel", 24, 27))
sketch14.addConstraint(Sketcher.Constraint("Parallel", 25, 28))
sketch14.addConstraint(Sketcher.Constraint("Parallel", 27, 30))
sketch14.addConstraint(Sketcher.Constraint("Parallel", 28, 31))
sketch14.addConstraint(Sketcher.Constraint("Horizontal", 0, 2, 3, 2))
sketch14.addConstraint(Sketcher.Constraint("Horizontal", 4, 2, 7, 2))
sketch14.addConstraint(Sketcher.Constraint("Horizontal", 9, 2, 12, 2))
sketch14.addConstraint(Sketcher.Constraint("Horizontal", 15, 2, 18, 2))
sketch14.addConstraint(Sketcher.Constraint("Horizontal", 21, 2, 24, 2))
sketch14.addConstraint(Sketcher.Constraint("Horizontal", 27, 2, 30, 2))
sketch14.addConstraint(Sketcher.Constraint("Vertical", 8, 2, 10, 2))
sketch14.addConstraint(Sketcher.Constraint("Vertical", 11, 2, 13, 2))
sketch14.addConstraint(Sketcher.Constraint("Vertical", 14, 2, 16, 2))
sketch14.addConstraint(Sketcher.Constraint("Vertical", 20, 2, 22, 2))
sketch14.addConstraint(Sketcher.Constraint("Vertical", 26, 2, 28, 2))
sketch14.addConstraint(Sketcher.Constraint("Equal", 11, 14))
sketch14.addConstraint(Sketcher.Constraint("Equal", 17, 20))
sketch14.addConstraint(Sketcher.Constraint("Equal", 23, 26))
sketch14.addConstraint(Sketcher.Constraint("Equal", 13, 15))
sketch14.addConstraint(Sketcher.Constraint("Equal", 19, 21))
sketch14.addConstraint(Sketcher.Constraint("Equal", 25, 27))
sketch14.addConstraint(Sketcher.Constraint("DistanceY", 5, 2, 5, 1, 49.0))
sketch14.addConstraint(Sketcher.Constraint("DistanceY", 7, 1, 7, 2, 50.0))
sketch14.addConstraint(Sketcher.Constraint("Angle", 3, Q("-135 deg")))
sketch14.addConstraint(Sketcher.Constraint("Angle", 9, Q("120 deg")))
sketch14.addConstraint(Sketcher.Constraint("DistanceY", -1, 1, 0, 2, 8.0))
sketch14.addConstraint(Sketcher.Constraint("DistanceX", -1, 1, 2, 2, 13.0))
sketch14.addConstraint(Sketcher.Constraint("DistanceY", -1, 1, 2, 2, 16.0))
sketch14.addConstraint(Sketcher.Constraint("DistanceY", 4, 2, -1, 1, 10.0))
sketch14.addConstraint(Sketcher.Constraint("DistanceX", -1, 1, 6, 2, 45.0))
sketch14.addConstraint(Sketcher.Constraint("DistanceX", 4, 2, 0, 2, 43.0))
sketch14.addConstraint(Sketcher.Constraint("DistanceX", -1, 1, 0, 2, 43.5))
sketch14.addConstraint(Sketcher.Constraint("DistanceY", 13, 2, 14, 2, 0.039))
sketch14.addConstraint(Sketcher.Constraint("DistanceX", 8, 2, 8, 1, 4.57735))
sketch14.addConstraint(Sketcher.Constraint("DistanceY", 8, 2, 9, 2, 3.964102))
sketch14.addConstraint(Sketcher.Constraint("Distance", 1, 11.29586))
sketch14.addConstraint(Sketcher.Constraint("Distance", 2, 22.525221))
sketch14.addConstraint(Sketcher.Constraint("DistanceX", -1, 1, 8, 2, 10.753431))
sketch14.addConstraint(Sketcher.Constraint("DistanceX", -1, 1, 15, 2, 30.939322))
sketch14.addConstraint(Sketcher.Constraint("DistanceX", -1, 1, 20, 2, 10.701358))
sketch14.addConstraint(Sketcher.Constraint("DistanceY", -1, 1, 20, 2, 3.965491))
sketch14.addConstraint(Sketcher.Constraint("DistanceY", -1, 1, 26, 2, 4.038479))
sketch14.addConstraint(Sketcher.Constraint("DistanceX", -1, 1, 27, 2, 30.949939))
sketch14.addConstraint(Sketcher.Constraint("DistanceY", 8, 2, -1, 1, 35.963217))
pad12 = body19.newObject("PartDesign::Pad", "Pad011")
pad12.Profile = sketch14
pad12.Length = 5

# Sketch on XY plane
sketch15 = body19.newObject("Sketcher::SketchObject", "Sketch014")
sketch15.AttachmentSupport = (doc.getObject("XY_Plane018"), [""])
sketch15.MapMode = "FlatFace"
add_polygon(sketch15, [(10.8, -28), (8.5, -32), (10.8, -36), (15.3, -36), (17.6, -32), (15.3, -28)])  # lines 0-5
sketch15.addGeometry(Part.Circle(Vector(13, -32, 0), Vector(0, 0, 1), 2), False)  # 6
add_polygon(sketch15, [(33.2, -28), (30.9, -32), (33.2, -35.9), (37.8, -35.9), (40.1, -32), (37.8, -28)])  # lines 7-12
sketch15.addGeometry(Part.Circle(Vector(35.5, -32, 0), Vector(0, 0, 1), 2), False)  # 13
add_polygon(sketch15, [(33.2, 12), (30.9, 8), (33.2, 4), (37.8, 4), (40.1, 8), (37.8, 12)])  # lines 14-19
sketch15.addGeometry(Part.Circle(Vector(35.5, 8, 0), Vector(0, 0, 1), 2), False)  # 20
add_polygon(sketch15, [(10.7, 11.9), (8.4, 7.9), (10.7, 4), (15.3, 4), (17.6, 7.9), (15.3, 11.9)])  # lines 21-26
sketch15.addGeometry(Part.Circle(Vector(13, 8, 0), Vector(0, 0, 1), 2), False)  # 27
sketch15.addConstraint(Sketcher.Constraint("Horizontal", 2))
sketch15.addConstraint(Sketcher.Constraint("Horizontal", 5))
sketch15.addConstraint(Sketcher.Constraint("Horizontal", 9))
sketch15.addConstraint(Sketcher.Constraint("Horizontal", 12))
sketch15.addConstraint(Sketcher.Constraint("Horizontal", 16))
sketch15.addConstraint(Sketcher.Constraint("Horizontal", 19))
sketch15.addConstraint(Sketcher.Constraint("Horizontal", 23))
sketch15.addConstraint(Sketcher.Constraint("Horizontal", 26))
sketch15.addConstraint(Sketcher.Constraint("Equal", 6, 13))
sketch15.addConstraint(Sketcher.Constraint("Equal", 13, 20))
sketch15.addConstraint(Sketcher.Constraint("Equal", 20, 27))
sketch15.addConstraint(Sketcher.Constraint("Parallel", 0, 3))
sketch15.addConstraint(Sketcher.Constraint("Parallel", 1, 4))
sketch15.addConstraint(Sketcher.Constraint("Parallel", 3, 7))
sketch15.addConstraint(Sketcher.Constraint("Parallel", 4, 8))
sketch15.addConstraint(Sketcher.Constraint("Parallel", 7, 10))
sketch15.addConstraint(Sketcher.Constraint("Parallel", 8, 11))
sketch15.addConstraint(Sketcher.Constraint("Parallel", 10, 14))
sketch15.addConstraint(Sketcher.Constraint("Parallel", 11, 15))
sketch15.addConstraint(Sketcher.Constraint("Parallel", 14, 17))
sketch15.addConstraint(Sketcher.Constraint("Parallel", 15, 18))
sketch15.addConstraint(Sketcher.Constraint("Parallel", 17, 21))
sketch15.addConstraint(Sketcher.Constraint("Parallel", 18, 22))
sketch15.addConstraint(Sketcher.Constraint("Parallel", 21, 24))
sketch15.addConstraint(Sketcher.Constraint("Parallel", 22, 25))
sketch15.addConstraint(Sketcher.Constraint("Horizontal", 6, 3, 13, 3))
sketch15.addConstraint(Sketcher.Constraint("Horizontal", 20, 3, 27, 3))
sketch15.addConstraint(Sketcher.Constraint("Horizontal", 0, 2, 3, 2))
sketch15.addConstraint(Sketcher.Constraint("Horizontal", 7, 2, 10, 2))
sketch15.addConstraint(Sketcher.Constraint("Horizontal", 14, 2, 17, 2))
sketch15.addConstraint(Sketcher.Constraint("Horizontal", 21, 2, 24, 2))
sketch15.addConstraint(Sketcher.Constraint("Vertical", 13, 3, 20, 3))
sketch15.addConstraint(Sketcher.Constraint("Vertical", 6, 3, 27, 3))
sketch15.addConstraint(Sketcher.Constraint("Vertical", 2, 2, 4, 2))
sketch15.addConstraint(Sketcher.Constraint("Vertical", 1, 2, 5, 2))
sketch15.addConstraint(Sketcher.Constraint("Vertical", 9, 2, 11, 2))
sketch15.addConstraint(Sketcher.Constraint("Vertical", 16, 2, 18, 2))
sketch15.addConstraint(Sketcher.Constraint("Vertical", 23, 2, 25, 2))
sketch15.addConstraint(Sketcher.Constraint("Equal", 5, 9))
sketch15.addConstraint(Sketcher.Constraint("Equal", 12, 16))
sketch15.addConstraint(Sketcher.Constraint("Equal", 19, 23))
sketch15.addConstraint(Sketcher.Constraint("Equal", 4, 7))
sketch15.addConstraint(Sketcher.Constraint("Equal", 11, 14))
sketch15.addConstraint(Sketcher.Constraint("Equal", 18, 21))
sketch15.addConstraint(Sketcher.Constraint("Diameter", 6, 4.0))
sketch15.addConstraint(Sketcher.Constraint("Angle", 0, Q("-120 deg")))
sketch15.addConstraint(Sketcher.Constraint("DistanceX", -1, 1, 6, 3, 13.0))
sketch15.addConstraint(Sketcher.Constraint("DistanceY", 6, 3, -1, 1, 32.0))
sketch15.addConstraint(Sketcher.Constraint("DistanceY", -1, 1, 20, 3, 8.0))
sketch15.addConstraint(Sketcher.Constraint("DistanceX", -1, 1, 13, 3, 35.5))
sketch15.addConstraint(Sketcher.Constraint("DistanceY", 3, 2, 7, 2, 0.039))
sketch15.addConstraint(Sketcher.Constraint("DistanceX", 2, 1, 2, 2, 4.57735))
sketch15.addConstraint(Sketcher.Constraint("DistanceY", 1, 2, 0, 2, 3.964102))
sketch15.addConstraint(Sketcher.Constraint("DistanceX", -1, 1, 1, 2, 10.753431))
sketch15.addConstraint(Sketcher.Constraint("DistanceX", -1, 1, 7, 2, 30.939322))
sketch15.addConstraint(Sketcher.Constraint("DistanceX", -1, 1, 14, 2, 30.949939))
sketch15.addConstraint(Sketcher.Constraint("DistanceY", -1, 1, 14, 2, 8.002581))
sketch15.addConstraint(Sketcher.Constraint("DistanceX", -1, 1, 22, 2, 10.701358))
sketch15.addConstraint(Sketcher.Constraint("DistanceY", -1, 1, 22, 2, 3.965491))
sketch15.addConstraint(Sketcher.Constraint("DistanceY", 0, 2, -1, 1, 31.999115))
pad13 = body19.newObject("PartDesign::Pad", "Pad012")
pad13.Profile = sketch15
pad13.Length = 3

doc.recompute()
